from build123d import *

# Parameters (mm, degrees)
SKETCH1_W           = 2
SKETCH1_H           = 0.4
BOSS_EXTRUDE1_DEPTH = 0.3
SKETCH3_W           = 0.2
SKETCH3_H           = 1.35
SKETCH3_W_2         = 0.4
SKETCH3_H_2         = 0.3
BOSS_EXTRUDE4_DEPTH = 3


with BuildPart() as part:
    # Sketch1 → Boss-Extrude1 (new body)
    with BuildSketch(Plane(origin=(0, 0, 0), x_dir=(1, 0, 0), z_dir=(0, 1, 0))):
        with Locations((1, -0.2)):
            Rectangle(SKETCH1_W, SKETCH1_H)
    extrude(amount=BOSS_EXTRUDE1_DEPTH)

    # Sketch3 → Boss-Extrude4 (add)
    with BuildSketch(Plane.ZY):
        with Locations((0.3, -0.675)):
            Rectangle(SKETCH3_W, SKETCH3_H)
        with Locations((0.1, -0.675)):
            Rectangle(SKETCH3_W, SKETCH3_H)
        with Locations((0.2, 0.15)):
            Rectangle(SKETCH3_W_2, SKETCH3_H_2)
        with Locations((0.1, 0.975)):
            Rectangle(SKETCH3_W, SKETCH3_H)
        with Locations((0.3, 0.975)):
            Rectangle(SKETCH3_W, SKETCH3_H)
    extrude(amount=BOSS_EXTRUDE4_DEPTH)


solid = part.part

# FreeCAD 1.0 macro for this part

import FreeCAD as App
import Part
import Sketcher

V = App.Vector

doc = App.newDocument("Part")
body = doc.addObject("PartDesign::Body", "Body")

# Sketch on XZ plane
sketch1 = body.newObject("Sketcher::SketchObject", "Sketch")
sketch1.AttachmentSupport = (doc.getObject("XZ_Plane"), [""])
sketch1.MapMode = "FlatFace"
sketch1.addGeometry(Part.LineSegment(V(0, 0, 0), V(0, 0.4, 0)), False)
sketch1.addGeometry(Part.LineSegment(V(0, 0.4, 0), V(2, 0.4, 0)), False)
sketch1.addGeometry(Part.LineSegment(V(2, 0.4, 0), V(2, 0, 0)), False)
sketch1.addGeometry(Part.LineSegment(V(2, 0, 0), V(0, 0, 0)), False)
sketch1.addConstraint(Sketcher.Constraint("Coincident", 0, 2, 1, 1))
sketch1.addConstraint(Sketcher.Constraint("Coincident", 1, 2, 2, 1))
sketch1.addConstraint(Sketcher.Constraint("Coincident", 2, 2, 3, 1))
sketch1.addConstraint(Sketcher.Constraint("Coincident", 3, 2, 0, 1))
sketch1.addConstraint(Sketcher.Constraint("Vertical", 0))
sketch1.addConstraint(Sketcher.Constraint("Horizontal", 1))
sketch1.addConstraint(Sketcher.Constraint("Vertical", 2))
sketch1.addConstraint(Sketcher.Constraint("Horizontal", 3))
sketch1.addConstraint(Sketcher.Constraint("Coincident", 3, 2, -1, 1))
sketch1.addConstraint(Sketcher.Constraint("DistanceX", 1, 1, 1, 2, 2.0))
sketch1.addConstraint(Sketcher.Constraint("DistanceY", 0, 1, 0, 2, 0.4))
pad1 = body.newObject("PartDesign::Pad", "Pad")
pad1.Profile = sketch1
pad1.Length = 0.3
pad1.Reversed = True

# Sketch on YZ plane
sketch2 = body.newObject("Sketcher::SketchObject", "Sketch001")
sketch2.AttachmentSupport = (doc.getObject("YZ_Plane"), [""])
sketch2.MapMode = "FlatFace"
sketch2.addGeometry(Part.LineSegment(V(-1.35, 0.4, 0), V(1.65, 0.4, 0)), False)
sketch2.addGeometry(Part.LineSegment(V(1.65, 0.4, 0), V(1.65, 0, 0)), False)
sketch2.addGeometry(Part.LineSegment(V(1.65, 0, 0), V(-1.35, 0, 0)), False)
sketch2.addGeometry(Part.LineSegment(V(-1.35, 0, 0), V(-1.35, 0.4, 0)), False)
sketch2.addConstraint(Sketcher.Constraint("Coincident", 0, 2, 1, 1))
sketch2.addConstraint(Sketcher.Constraint("Coincident", 1, 2, 2, 1))
sketch2.addConstraint(Sketcher.Constraint("Coincident", 2, 2, 3, 1))
sketch2.addConstraint(Sketcher.Constraint("Coincident", 3, 2, 0, 1))
sketch2.addConstraint(Sketcher.Constraint("Horizontal", 0))
sketch2.addConstraint(Sketcher.Constraint("Vertical", 1))
sketch2.addConstraint(Sketcher.Constraint("Horizontal", 2))
sketch2.addConstraint(Sketcher.Constraint("Vertical", 3))
sketch2.addConstraint(Sketcher.Constraint("PointOnObject", 1, 2, -1))
sketch2.addConstraint(Sketcher.Constraint("DistanceX", 0, 1, 0, 2, 3.0))
sketch2.addConstraint(Sketcher.Constraint("DistanceY", 1, 2, 1, 1, 0.4))
sketch2.addConstraint(Sketcher.Constraint("DistanceX", -1, 1, 0, 2, 1.65))
pad2 = body.newObject("PartDesign::Pad", "Pad001")
pad2.Profile = sketch2
pad2.Length = 3
pad2.Reversed = True

doc.recompute()
